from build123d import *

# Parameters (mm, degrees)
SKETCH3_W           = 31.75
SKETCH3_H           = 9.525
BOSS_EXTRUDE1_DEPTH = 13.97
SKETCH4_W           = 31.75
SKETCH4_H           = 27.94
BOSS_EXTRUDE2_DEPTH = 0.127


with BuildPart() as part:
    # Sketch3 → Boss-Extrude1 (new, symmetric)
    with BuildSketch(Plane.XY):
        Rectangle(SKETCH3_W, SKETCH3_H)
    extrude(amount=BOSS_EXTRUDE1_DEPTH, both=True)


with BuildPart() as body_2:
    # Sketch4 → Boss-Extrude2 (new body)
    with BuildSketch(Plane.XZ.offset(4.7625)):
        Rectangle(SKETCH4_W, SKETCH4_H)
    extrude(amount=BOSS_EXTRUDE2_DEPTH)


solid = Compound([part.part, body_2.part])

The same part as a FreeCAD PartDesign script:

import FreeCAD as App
import Part
import Sketcher
Q = App.Units.Quantity


def add_polygon(sketch, points):
    """Adds a closed chain of lines whose ends are joined by coincident constraints."""
    first, n = sketch.GeometryCount, len(points)
    for a, b in zip(points, points[1:] + points[:1]):
        sketch.addGeometry(Part.LineSegment(App.Vector(*a, 0), App.Vector(*b, 0)), False)
    for i in range(n):
        sketch.addConstraint(Sketcher.Constraint("Coincident", first + i, 2, first + (i + 1) % n, 1))

doc = App.newDocument("Part")
body = doc.addObject("PartDesign::Body", "Body")

# Sketch on XY plane
sketch1 = doc.addObject("Sketcher::SketchObject", "Sketch")
body.addObject(sketch1)
sketch1.AttachmentSupport = (doc.XY_Plane, [""])
sketch1.MapMode = "FlatFace"
add_polygon(sketch1, [(-15.875, 4.7625), (-15.875, -4.7625), (15.875, -4.7625), (15.875, 4.7625)])  # lines 0-3
sketch1.addConstraint(Sketcher.Constraint("Vertical", 0))
sketch1.addConstraint(Sketcher.Constraint("Horizontal", 1))
sketch1.addConstraint(Sketcher.Constraint("Vertical", 2))
sketch1.addConstraint(Sketcher.Constraint("Horizontal", 3))
sketch1.addConstraint(Sketcher.Constraint("Symmetric", 0, 2, 2, 2, -1, 1))
sketch1.addConstraint(Sketcher.Constraint("DistanceX", 1, 1, 1, 2, Q("1.25 in")))
sketch1.addConstraint(Sketcher.Constraint("DistanceY", 0, 2, 0, 1, Q("0.375 in")))
pad1 = doc.addObject("PartDesign::Pad", "Pad")
body.addObject(pad1)
pad1.Profile = sketch1
pad1.Length = Q("1.1 in")
pad1.Midplane = True
body2 = doc.addObject("PartDesign::Body", "Body001")

# Sketch on XZ plane
sketch2 = doc.addObject("Sketcher::SketchObject", "Sketch001")
body2.addObject(sketch2)
sketch2.AttachmentSupport = (doc.getObject("XZ_Plane001"), [""])
sketch2.MapMode = "FlatFace"
sketch2.AttachmentOffset = App.Placement(App.Vector(0, 0, 0.1875 * 25.4), App.Rotation())
add_polygon(sketch2, [(-15.875, 13.97), (-15.875, -13.97), (15.875, -13.97), (15.875, 13.97)])  # lines 0-3
sketch2.addConstraint(Sketcher.Constraint("Vertical", 0))
sketch2.addConstraint(Sketcher.Constraint("Horizontal", 1))
sketch2.addConstraint(Sketcher.Constraint("Vertical", 2))
sketch2.addConstraint(Sketcher.Constraint("Horizontal", 3))
sketch2.addConstraint(Sketcher.Constraint("Symmetric", 0, 2, 2, 2, -1, 1))
sketch2.addConstraint(Sketcher.Constraint("DistanceY", 0, 2, 0, 1, Q("1.1 in")))
sketch2.addConstraint(Sketcher.Constraint("DistanceX", 1, 1, 1, 2, Q("1.25 in")))
pad2 = doc.addObject("PartDesign::Pad", "Pad001")
body2.addObject(pad2)
pad2.Profile = sketch2
pad2.Length = Q("0.005 in")

doc.recompute()
